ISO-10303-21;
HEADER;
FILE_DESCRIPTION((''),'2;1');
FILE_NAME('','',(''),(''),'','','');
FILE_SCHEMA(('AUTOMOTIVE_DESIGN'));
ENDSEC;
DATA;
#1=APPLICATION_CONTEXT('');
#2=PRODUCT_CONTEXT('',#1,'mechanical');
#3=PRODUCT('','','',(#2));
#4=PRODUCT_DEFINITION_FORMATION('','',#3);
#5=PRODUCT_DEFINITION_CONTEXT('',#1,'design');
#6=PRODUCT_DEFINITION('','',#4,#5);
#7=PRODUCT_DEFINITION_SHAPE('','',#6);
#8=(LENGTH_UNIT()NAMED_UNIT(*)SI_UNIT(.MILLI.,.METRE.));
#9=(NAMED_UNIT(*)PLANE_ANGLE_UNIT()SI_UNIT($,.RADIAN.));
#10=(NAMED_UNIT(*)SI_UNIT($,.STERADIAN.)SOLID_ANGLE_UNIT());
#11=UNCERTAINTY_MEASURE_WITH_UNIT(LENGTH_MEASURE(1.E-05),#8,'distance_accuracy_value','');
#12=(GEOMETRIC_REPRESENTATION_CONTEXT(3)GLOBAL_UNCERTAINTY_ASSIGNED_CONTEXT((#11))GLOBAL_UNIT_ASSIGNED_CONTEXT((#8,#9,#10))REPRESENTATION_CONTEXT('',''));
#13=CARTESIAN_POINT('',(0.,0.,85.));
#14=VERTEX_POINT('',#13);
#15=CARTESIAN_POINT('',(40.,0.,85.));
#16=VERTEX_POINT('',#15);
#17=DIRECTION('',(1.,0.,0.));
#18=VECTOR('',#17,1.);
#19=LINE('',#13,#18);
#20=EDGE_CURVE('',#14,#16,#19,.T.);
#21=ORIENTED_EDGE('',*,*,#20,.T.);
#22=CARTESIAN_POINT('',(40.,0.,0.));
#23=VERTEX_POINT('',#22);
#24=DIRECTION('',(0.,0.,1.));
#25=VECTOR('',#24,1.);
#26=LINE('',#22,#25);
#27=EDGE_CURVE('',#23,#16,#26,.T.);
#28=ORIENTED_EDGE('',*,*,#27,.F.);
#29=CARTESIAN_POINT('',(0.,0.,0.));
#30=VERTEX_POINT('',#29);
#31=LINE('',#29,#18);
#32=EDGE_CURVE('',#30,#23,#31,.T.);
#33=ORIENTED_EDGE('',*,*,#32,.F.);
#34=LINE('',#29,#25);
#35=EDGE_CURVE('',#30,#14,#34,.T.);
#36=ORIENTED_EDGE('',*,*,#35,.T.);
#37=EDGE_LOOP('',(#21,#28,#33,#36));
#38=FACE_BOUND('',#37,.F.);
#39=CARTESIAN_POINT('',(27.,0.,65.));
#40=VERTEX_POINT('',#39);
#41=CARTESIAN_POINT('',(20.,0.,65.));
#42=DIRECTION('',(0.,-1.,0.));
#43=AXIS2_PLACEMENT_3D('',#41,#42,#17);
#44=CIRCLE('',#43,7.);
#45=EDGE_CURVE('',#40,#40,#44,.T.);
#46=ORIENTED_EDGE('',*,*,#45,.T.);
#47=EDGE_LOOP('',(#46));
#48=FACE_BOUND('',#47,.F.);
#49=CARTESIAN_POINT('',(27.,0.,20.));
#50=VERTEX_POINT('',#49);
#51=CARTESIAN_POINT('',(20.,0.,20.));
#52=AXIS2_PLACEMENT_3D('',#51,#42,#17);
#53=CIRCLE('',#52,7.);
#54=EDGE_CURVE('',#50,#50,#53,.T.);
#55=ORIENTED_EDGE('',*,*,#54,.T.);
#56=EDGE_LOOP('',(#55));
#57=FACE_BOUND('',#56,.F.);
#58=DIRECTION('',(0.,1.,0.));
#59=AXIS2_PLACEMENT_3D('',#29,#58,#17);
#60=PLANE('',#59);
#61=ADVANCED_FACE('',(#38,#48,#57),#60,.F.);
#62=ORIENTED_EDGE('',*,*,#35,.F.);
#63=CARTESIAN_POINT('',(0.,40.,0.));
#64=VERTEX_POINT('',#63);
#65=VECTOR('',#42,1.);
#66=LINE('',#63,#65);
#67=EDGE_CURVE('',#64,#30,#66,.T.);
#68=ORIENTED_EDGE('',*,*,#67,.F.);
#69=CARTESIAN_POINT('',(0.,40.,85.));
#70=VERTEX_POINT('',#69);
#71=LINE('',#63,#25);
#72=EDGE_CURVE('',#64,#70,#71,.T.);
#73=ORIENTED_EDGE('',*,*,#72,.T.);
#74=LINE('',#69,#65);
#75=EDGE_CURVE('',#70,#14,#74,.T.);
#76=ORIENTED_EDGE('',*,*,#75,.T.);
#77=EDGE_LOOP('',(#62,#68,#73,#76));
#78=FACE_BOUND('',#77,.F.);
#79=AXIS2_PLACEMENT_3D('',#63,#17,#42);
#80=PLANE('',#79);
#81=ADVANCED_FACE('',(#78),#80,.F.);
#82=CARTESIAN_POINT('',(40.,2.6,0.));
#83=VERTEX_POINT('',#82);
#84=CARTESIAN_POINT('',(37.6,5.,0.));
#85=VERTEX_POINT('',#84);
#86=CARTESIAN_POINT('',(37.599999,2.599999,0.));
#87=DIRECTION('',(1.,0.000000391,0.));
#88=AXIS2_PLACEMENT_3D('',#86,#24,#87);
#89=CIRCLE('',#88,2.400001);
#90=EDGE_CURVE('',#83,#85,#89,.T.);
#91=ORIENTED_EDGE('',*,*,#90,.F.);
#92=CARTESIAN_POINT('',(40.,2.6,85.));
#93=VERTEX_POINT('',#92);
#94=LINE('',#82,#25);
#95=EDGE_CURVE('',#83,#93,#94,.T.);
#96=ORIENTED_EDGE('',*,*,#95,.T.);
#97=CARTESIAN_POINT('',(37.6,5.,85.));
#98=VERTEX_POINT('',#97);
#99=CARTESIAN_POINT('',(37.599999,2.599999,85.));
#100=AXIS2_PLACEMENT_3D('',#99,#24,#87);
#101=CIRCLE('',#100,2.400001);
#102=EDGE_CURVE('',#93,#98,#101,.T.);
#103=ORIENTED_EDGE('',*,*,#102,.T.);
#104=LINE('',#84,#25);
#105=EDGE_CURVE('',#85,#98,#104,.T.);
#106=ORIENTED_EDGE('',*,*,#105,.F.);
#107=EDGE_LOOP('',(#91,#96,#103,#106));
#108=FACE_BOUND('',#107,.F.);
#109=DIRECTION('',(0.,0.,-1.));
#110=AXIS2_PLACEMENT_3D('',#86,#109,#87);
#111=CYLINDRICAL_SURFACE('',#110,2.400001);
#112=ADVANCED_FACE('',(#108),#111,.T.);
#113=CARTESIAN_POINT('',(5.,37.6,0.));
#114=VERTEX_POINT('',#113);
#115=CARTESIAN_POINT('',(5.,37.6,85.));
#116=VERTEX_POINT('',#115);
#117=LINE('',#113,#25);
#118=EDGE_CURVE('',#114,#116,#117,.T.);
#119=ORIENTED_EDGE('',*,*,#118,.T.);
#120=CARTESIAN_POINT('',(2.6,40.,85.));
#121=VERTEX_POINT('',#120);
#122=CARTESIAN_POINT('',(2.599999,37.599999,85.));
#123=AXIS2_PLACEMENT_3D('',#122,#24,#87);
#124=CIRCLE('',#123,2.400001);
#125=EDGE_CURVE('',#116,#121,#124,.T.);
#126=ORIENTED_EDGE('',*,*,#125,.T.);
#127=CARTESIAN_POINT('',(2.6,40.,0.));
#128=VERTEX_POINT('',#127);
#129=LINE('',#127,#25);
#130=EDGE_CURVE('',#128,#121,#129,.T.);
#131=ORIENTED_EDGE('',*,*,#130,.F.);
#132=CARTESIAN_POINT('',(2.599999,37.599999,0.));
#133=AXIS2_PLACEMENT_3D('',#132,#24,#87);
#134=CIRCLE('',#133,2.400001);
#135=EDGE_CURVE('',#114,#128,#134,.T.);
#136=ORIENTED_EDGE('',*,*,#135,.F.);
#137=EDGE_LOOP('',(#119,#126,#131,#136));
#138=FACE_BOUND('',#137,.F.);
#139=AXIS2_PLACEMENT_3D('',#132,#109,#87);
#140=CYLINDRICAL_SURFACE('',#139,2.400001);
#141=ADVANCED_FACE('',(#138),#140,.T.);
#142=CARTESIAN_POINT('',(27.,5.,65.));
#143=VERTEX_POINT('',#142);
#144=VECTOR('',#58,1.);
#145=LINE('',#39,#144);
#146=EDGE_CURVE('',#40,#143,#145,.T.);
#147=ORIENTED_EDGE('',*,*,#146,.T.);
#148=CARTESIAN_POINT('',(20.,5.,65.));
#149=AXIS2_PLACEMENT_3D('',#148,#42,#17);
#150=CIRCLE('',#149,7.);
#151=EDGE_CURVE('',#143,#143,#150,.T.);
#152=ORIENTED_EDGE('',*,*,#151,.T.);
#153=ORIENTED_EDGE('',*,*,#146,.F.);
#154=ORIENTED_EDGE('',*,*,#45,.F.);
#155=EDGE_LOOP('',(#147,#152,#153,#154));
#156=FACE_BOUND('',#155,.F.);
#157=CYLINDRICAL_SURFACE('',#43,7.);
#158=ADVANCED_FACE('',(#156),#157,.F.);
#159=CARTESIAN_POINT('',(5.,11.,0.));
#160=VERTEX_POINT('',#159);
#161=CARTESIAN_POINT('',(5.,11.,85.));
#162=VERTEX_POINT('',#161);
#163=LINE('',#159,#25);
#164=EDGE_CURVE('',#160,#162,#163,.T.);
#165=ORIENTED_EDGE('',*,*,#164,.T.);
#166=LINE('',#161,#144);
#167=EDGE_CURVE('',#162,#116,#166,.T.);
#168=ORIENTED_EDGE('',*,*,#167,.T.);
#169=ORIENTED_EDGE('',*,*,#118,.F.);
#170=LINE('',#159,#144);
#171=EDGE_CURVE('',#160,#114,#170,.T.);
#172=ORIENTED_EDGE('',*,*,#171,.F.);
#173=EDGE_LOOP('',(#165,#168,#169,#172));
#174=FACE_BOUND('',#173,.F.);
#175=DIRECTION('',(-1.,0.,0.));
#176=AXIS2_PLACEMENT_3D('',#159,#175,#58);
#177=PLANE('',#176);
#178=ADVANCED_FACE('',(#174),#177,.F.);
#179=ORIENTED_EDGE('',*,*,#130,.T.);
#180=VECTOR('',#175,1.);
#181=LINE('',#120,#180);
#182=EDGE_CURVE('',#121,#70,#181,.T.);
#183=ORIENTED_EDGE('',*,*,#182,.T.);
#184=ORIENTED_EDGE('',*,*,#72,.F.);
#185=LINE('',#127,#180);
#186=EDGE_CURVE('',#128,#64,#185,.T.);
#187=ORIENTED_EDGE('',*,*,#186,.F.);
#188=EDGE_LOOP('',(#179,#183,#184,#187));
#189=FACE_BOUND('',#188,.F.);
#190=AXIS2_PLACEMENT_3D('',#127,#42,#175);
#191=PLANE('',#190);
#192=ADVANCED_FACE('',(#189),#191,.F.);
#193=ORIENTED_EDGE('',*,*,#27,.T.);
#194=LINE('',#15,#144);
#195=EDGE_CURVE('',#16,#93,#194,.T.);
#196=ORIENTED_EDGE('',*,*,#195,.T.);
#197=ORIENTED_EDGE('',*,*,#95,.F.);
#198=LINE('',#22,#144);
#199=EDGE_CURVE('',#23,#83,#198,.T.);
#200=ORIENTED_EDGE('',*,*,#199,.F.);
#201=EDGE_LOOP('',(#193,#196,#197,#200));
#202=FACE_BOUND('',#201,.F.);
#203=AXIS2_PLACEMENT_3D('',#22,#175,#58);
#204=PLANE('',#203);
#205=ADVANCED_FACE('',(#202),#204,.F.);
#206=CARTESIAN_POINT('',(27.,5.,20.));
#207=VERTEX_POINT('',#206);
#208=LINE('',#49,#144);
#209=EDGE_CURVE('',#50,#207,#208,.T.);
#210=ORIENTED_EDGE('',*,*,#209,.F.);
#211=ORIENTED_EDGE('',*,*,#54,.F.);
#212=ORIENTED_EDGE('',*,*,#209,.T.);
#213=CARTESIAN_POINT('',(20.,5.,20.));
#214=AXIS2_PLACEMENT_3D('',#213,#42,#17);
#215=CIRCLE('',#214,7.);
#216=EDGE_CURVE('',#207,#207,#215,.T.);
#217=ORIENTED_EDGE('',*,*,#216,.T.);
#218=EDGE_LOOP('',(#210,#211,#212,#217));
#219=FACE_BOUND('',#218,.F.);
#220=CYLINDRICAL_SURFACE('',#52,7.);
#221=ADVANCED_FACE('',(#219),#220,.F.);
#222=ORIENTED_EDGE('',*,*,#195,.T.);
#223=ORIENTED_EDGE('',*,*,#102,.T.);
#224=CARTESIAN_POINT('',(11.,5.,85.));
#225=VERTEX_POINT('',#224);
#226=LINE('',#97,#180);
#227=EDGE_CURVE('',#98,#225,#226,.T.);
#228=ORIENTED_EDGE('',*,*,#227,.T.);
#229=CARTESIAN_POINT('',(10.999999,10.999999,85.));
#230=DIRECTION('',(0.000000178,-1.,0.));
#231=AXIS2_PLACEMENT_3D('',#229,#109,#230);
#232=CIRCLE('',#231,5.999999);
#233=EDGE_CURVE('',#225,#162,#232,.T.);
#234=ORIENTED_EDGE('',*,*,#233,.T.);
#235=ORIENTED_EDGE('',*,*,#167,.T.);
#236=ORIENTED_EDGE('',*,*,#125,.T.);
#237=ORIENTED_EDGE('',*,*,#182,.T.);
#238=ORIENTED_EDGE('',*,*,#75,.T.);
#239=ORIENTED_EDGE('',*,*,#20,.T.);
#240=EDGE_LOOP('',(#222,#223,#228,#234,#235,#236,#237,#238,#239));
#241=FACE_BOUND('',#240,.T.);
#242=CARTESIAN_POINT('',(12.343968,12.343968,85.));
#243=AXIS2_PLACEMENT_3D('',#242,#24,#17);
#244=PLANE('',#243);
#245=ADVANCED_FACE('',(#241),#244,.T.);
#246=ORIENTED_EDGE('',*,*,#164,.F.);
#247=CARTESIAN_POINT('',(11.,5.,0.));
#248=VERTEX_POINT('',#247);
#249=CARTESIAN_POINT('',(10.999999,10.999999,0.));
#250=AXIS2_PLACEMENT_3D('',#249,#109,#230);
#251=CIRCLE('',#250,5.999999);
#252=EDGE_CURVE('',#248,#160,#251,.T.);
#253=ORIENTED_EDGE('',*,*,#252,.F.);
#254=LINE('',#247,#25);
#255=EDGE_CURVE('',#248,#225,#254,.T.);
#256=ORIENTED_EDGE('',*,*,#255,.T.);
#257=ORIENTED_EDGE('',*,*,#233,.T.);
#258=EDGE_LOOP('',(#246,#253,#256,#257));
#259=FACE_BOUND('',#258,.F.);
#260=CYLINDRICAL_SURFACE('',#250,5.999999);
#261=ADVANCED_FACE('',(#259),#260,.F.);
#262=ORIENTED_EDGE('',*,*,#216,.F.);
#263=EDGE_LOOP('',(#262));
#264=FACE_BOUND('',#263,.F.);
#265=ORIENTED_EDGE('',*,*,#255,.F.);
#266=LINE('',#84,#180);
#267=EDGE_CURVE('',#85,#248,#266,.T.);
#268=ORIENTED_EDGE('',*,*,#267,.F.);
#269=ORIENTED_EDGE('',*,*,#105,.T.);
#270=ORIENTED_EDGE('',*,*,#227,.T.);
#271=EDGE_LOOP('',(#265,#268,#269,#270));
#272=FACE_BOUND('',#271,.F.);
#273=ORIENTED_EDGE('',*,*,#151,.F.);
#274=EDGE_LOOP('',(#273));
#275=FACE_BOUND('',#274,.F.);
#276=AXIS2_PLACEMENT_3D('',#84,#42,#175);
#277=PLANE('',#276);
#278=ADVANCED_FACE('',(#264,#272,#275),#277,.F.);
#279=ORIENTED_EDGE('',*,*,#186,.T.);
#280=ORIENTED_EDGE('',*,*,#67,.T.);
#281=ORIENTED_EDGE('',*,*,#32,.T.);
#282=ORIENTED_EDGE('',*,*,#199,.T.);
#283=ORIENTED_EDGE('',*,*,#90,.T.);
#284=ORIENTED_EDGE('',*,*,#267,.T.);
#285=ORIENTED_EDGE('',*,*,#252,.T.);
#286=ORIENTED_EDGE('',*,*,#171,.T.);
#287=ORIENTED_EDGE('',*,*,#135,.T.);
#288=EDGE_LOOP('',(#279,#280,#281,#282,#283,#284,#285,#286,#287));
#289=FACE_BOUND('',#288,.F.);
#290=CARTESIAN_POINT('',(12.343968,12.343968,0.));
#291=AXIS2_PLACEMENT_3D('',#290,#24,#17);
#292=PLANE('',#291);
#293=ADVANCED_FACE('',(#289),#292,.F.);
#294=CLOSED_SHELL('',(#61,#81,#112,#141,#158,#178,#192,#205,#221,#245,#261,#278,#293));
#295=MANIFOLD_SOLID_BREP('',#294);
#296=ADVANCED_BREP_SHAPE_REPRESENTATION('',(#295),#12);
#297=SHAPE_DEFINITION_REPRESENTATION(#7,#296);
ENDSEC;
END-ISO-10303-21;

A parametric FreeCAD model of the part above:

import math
import FreeCAD as App
import Part
import Sketcher

doc = App.newDocument("Part")
body = doc.addObject("PartDesign::Body", "Body")

sketch1 = body.newObject("Sketcher::SketchObject", "Sketch")
sketch1.AttachmentSupport = (doc.getObject("XY_Plane"), [""])
sketch1.MapMode = "FlatFace"
sketch1.addGeometry(Part.LineSegment(App.Vector(0, 40, 0), App.Vector(0, 0, 0)), False)
sketch1.addGeometry(Part.LineSegment(App.Vector(0, 0, 0), App.Vector(40, 0, 0)), False)
sketch1.addGeometry(Part.LineSegment(App.Vector(40, 0, 0), App.Vector(40, 2.6, 0)), False)
sketch1.addGeometry(Part.ArcOfCircle(Part.Circle(App.Vector(37.599999, 2.599999, 0), App.Vector(0, 0, 1), 2.400001), math.radians(0.000022), math.radians(89.999978)), False)
sketch1.addGeometry(Part.LineSegment(App.Vector(37.6, 5, 0), App.Vector(11, 5, 0)), False)
sketch1.addGeometry(Part.ArcOfCircle(Part.Circle(App.Vector(10.999999, 10.999999, 0), App.Vector(0, 0, 1), 5.999999), math.radians(179.99999), math.radians(270.00001)), False)
sketch1.addGeometry(Part.LineSegment(App.Vector(5, 11, 0), App.Vector(5, 37.6, 0)), False)
sketch1.addGeometry(Part.ArcOfCircle(Part.Circle(App.Vector(2.599999, 37.599999, 0), App.Vector(0, 0, 1), 2.400001), math.radians(0.000022), math.radians(89.999978)), False)
sketch1.addGeometry(Part.LineSegment(App.Vector(2.6, 40, 0), App.Vector(0, 40, 0)), False)
sketch1.addConstraint(Sketcher.Constraint("Coincident", 0, 2, 1, 1))
sketch1.addConstraint(Sketcher.Constraint("Coincident", 1, 2, 2, 1))
sketch1.addConstraint(Sketcher.Constraint("Tangent", 2, 2, 3, 1))
sketch1.addConstraint(Sketcher.Constraint("Tangent", 3, 2, 4, 1))
sketch1.addConstraint(Sketcher.Constraint("Tangent", 4, 2, 5, 2))
sketch1.addConstraint(Sketcher.Constraint("Tangent", 5, 1, 6, 1))
sketch1.addConstraint(Sketcher.Constraint("Tangent", 6, 2, 7, 1))
sketch1.addConstraint(Sketcher.Constraint("Tangent", 7, 2, 8, 1))
sketch1.addConstraint(Sketcher.Constraint("Coincident", 8, 2, 0, 1))
sketch1.addConstraint(Sketcher.Constraint("Vertical", 0))
sketch1.addConstraint(Sketcher.Constraint("Horizontal", 1))
sketch1.addConstraint(Sketcher.Constraint("Vertical", 2))
sketch1.addConstraint(Sketcher.Constraint("Horizontal", 4))
sketch1.addConstraint(Sketcher.Constraint("Vertical", 6))
sketch1.addConstraint(Sketcher.Constraint("Horizontal", 8))
sketch1.addConstraint(Sketcher.Constraint("Coincident", 0, 2, -1, 1))
sketch1.addConstraint(Sketcher.Constraint("Equal", 3, 7))
sketch1.addConstraint(Sketcher.Constraint("Equal", 1, 0))
sketch1.addConstraint(Sketcher.Constraint("Equal", 8, 2))
sketch1.addConstraint(Sketcher.Constraint("Radius", 5, 5.999999))
sketch1.addConstraint(Sketcher.Constraint("Radius", 3, 2.400001))
sketch1.addConstraint(Sketcher.Constraint("DistanceX", 1, 1, 1, 2, 40.0))
sketch1.addConstraint(Sketcher.Constraint("DistanceX", 4, 2, 4, 1, 26.6))
pad1 = body.newObject("PartDesign::Pad", "Pad")
pad1.Profile = sketch1
pad1.Length = 85

sketch2 = body.newObject("Sketcher::SketchObject", "Sketch001")
sketch2.AttachmentSupport = (doc.getObject("XZ_Plane"), [""])
sketch2.MapMode = "FlatFace"
sketch2.addGeometry(Part.Circle(App.Vector(20, 65, 0), App.Vector(0, 0, 1), 7), False)
sketch2.addGeometry(Part.Circle(App.Vector(20, 20, 0), App.Vector(0, 0, 1), 7), False)
sketch2.addConstraint(Sketcher.Constraint("Equal", 0, 1))
sketch2.addConstraint(Sketcher.Constraint("Vertical", 0, 3, 1, 3))
sketch2.addConstraint(Sketcher.Constraint("Diameter", 0, 14.0))
sketch2.addConstraint(Sketcher.Constraint("DistanceX", -1, 1, 0, 3, 20.0))
sketch2.addConstraint(Sketcher.Constraint("DistanceY", -1, 1, 0, 3, 65.0))
sketch2.addConstraint(Sketcher.Constraint("DistanceY", -1, 1, 1, 3, 20.0))
pocket1 = body.newObject("PartDesign::Pocket", "Pocket")
pocket1.Profile = sketch2
pocket1.Type = "ThroughAll"

doc.recompute()
